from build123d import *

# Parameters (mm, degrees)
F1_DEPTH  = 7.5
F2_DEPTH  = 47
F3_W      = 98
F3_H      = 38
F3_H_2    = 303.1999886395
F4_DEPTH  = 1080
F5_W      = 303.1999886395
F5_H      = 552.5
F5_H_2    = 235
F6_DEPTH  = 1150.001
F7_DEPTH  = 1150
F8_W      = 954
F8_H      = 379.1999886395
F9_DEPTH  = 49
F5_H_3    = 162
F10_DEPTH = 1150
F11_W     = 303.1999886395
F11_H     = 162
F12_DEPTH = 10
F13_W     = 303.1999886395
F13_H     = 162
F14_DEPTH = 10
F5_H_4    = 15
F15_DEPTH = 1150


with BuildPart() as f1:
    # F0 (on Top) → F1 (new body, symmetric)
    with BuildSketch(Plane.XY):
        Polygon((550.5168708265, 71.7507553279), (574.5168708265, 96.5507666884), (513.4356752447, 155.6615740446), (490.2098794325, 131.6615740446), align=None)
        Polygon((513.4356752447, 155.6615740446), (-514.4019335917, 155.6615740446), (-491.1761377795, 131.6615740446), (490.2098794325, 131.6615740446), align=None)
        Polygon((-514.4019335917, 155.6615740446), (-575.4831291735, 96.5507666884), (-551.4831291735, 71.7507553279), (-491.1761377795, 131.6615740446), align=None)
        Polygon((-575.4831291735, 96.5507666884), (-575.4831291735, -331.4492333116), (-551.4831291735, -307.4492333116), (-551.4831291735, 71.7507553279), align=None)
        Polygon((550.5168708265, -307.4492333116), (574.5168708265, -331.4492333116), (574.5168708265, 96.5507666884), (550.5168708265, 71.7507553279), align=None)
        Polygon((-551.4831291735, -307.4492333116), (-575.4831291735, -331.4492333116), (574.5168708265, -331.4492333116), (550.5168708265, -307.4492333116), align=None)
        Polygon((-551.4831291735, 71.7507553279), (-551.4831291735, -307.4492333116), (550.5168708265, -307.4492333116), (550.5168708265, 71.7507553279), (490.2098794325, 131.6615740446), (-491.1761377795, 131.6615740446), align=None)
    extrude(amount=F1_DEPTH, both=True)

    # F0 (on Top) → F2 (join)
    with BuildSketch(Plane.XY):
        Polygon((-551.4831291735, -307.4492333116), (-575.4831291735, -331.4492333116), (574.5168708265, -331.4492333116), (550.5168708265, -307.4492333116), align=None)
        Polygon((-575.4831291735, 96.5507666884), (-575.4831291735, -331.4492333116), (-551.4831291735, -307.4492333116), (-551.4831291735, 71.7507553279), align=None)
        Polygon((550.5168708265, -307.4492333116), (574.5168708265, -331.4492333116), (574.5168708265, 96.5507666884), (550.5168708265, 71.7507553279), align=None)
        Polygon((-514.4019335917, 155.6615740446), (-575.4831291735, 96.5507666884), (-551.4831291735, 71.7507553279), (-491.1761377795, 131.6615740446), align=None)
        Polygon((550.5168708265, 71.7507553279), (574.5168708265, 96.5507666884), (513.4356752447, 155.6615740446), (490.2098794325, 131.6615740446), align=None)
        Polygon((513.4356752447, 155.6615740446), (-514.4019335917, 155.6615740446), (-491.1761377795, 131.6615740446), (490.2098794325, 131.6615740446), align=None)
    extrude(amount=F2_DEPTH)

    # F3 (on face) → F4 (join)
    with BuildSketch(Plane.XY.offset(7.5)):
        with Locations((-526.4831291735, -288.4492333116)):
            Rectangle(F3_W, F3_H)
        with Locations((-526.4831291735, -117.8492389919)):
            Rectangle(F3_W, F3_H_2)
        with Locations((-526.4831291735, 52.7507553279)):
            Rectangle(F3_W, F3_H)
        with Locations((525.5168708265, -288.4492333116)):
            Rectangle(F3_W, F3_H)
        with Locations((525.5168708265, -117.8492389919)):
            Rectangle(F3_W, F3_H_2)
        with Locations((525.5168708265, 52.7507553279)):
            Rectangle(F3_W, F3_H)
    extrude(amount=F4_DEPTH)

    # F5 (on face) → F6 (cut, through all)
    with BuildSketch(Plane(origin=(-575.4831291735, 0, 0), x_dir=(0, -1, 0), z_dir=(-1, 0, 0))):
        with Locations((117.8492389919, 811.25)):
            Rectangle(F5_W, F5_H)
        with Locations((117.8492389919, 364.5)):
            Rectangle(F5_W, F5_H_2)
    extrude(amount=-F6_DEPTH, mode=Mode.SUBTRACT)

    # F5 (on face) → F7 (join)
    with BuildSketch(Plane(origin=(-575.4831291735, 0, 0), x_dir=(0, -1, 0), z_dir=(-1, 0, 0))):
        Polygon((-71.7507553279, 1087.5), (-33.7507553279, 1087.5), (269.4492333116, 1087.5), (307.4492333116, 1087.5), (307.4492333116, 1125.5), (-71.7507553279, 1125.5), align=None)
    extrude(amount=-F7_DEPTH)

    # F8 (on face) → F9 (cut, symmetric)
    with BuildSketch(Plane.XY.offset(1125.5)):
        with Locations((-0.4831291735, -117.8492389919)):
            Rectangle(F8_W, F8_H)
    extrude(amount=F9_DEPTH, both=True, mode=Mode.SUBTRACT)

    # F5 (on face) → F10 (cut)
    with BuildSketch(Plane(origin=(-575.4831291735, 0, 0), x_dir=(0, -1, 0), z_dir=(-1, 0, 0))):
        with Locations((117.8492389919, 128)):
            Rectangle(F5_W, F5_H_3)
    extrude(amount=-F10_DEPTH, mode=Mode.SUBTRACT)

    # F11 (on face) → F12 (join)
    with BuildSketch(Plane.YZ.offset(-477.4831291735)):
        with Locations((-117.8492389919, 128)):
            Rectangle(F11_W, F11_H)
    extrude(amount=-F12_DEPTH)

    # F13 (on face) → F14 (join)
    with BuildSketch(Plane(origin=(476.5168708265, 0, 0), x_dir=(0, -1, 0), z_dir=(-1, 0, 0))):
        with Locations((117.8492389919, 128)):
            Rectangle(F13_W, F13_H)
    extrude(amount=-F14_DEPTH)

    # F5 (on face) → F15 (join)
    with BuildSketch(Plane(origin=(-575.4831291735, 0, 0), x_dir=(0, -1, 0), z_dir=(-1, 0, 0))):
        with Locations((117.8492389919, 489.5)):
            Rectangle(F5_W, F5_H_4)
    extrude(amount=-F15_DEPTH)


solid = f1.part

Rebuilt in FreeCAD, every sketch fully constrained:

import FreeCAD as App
import Part
import Sketcher
Q = App.Units.Quantity


def add_polygon(sketch, points):
    """Adds a closed chain of lines whose ends are joined by coincident constraints."""
    first, n = sketch.GeometryCount, len(points)
    for a, b in zip(points, points[1:] + points[:1]):
        sketch.addGeometry(Part.LineSegment(App.Vector(*a, 0), App.Vector(*b, 0)), False)
    for i in range(n):
        sketch.addConstraint(Sketcher.Constraint("Coincident", first + i, 2, first + (i + 1) % n, 1))

doc = App.newDocument("Part")
body = doc.addObject("PartDesign::Body", "Body")

sketch1 = body.newObject("Sketcher::SketchObject", "Sketch")
sketch1.AttachmentSupport = (doc.getObject("XY_Plane"), [""])
sketch1.MapMode = "FlatFace"
add_polygon(sketch1, [(574.516871, 96.550767), (513.435675, 155.661574), (-514.401934, 155.661574), (-575.483129, 96.550767), (-575.483129, -331.449233), (574.516871, -331.449233)])
sketch1.addConstraint(Sketcher.Constraint("Horizontal", 1))
sketch1.addConstraint(Sketcher.Constraint("Vertical", 3))
sketch1.addConstraint(Sketcher.Constraint("Horizontal", 4))
sketch1.addConstraint(Sketcher.Constraint("Vertical", 5))
sketch1.addConstraint(Sketcher.Constraint("Horizontal", 2, 2, 5, 2))
sketch1.addConstraint(Sketcher.Constraint("Equal", 0, 2))
sketch1.addConstraint(Sketcher.Constraint("DistanceX", 4, 1, 4, 2, Q("1150 mm")))
sketch1.addConstraint(Sketcher.Constraint("DistanceY", 3, 2, 3, 1, Q("428 mm")))
sketch1.addConstraint(Sketcher.Constraint("Distance", 0, Q("85 mm")))
sketch1.addConstraint(Sketcher.Constraint("DistanceX", 1, 2, 1, 1, Q("1027.837609 mm")))
sketch1.addConstraint(Sketcher.Constraint("DistanceX", 2, 2, -1, 1, Q("575.483129 mm")))
sketch1.addConstraint(Sketcher.Constraint("DistanceY", -1, 1, 0, 2, Q("155.661574 mm")))
pad1 = body.newObject("PartDesign::Pad", "Pad")
pad1.Profile = sketch1
pad1.Length = 15
pad1.Midplane = True

sketch2 = body.newObject("Sketcher::SketchObject", "Sketch001")
sketch2.AttachmentSupport = (doc.getObject("XY_Plane"), [""])
sketch2.MapMode = "FlatFace"
add_polygon(sketch2, [(-575.483129, -331.449233), (574.516871, -331.449233), (574.516871, 96.550767), (513.435675, 155.661574), (-514.401934, 155.661574), (-575.483129, 96.550767)])
add_polygon(sketch2, [(490.209879, 131.661574), (550.516871, 71.750755), (550.516871, -307.449233), (-551.483129, -307.449233), (-551.483129, 71.750755), (-491.176138, 131.661574)])
sketch2.addConstraint(Sketcher.Constraint("Horizontal", 0))
sketch2.addConstraint(Sketcher.Constraint("Vertical", 1))
sketch2.addConstraint(Sketcher.Constraint("Horizontal", 3))
sketch2.addConstraint(Sketcher.Constraint("Vertical", 5))
sketch2.addConstraint(Sketcher.Constraint("Vertical", 7))
sketch2.addConstraint(Sketcher.Constraint("Horizontal", 8))
sketch2.addConstraint(Sketcher.Constraint("Vertical", 9))
sketch2.addConstraint(Sketcher.Constraint("Horizontal", 11))
sketch2.addConstraint(Sketcher.Constraint("Horizontal", 1, 2, 4, 2))
sketch2.addConstraint(Sketcher.Constraint("Horizontal", 6, 2, 9, 2))
sketch2.addConstraint(Sketcher.Constraint("Equal", 2, 4))
sketch2.addConstraint(Sketcher.Constraint("Equal", 6, 10))
sketch2.addConstraint(Sketcher.Constraint("DistanceX", 0, 1, 0, 2, Q("1150 mm")))
sketch2.addConstraint(Sketcher.Constraint("DistanceX", 8, 2, 8, 1, Q("1102 mm")))
sketch2.addConstraint(Sketcher.Constraint("DistanceY", 1, 1, 1, 2, Q("428 mm")))
sketch2.addConstraint(Sketcher.Constraint("Distance", 2, Q("85 mm")))
sketch2.addConstraint(Sketcher.Constraint("DistanceX", 6, 2, 1, 2, Q("24 mm")))
sketch2.addConstraint(Sketcher.Constraint("DistanceY", 0, 2, 7, 2, Q("24 mm")))
sketch2.addConstraint(Sketcher.Constraint("DistanceY", 10, 2, 3, 2, Q("24 mm")))
sketch2.addConstraint(Sketcher.Constraint("DistanceX", 3, 2, 3, 1, Q("1027.837609 mm")))
sketch2.addConstraint(Sketcher.Constraint("DistanceY", 7, 2, 7, 1, Q("379.199989 mm")))
sketch2.addConstraint(Sketcher.Constraint("Distance", 6, Q("85.00729 mm")))
sketch2.addConstraint(Sketcher.Constraint("DistanceX", -1, 1, 0, 2, Q("574.516871 mm")))
sketch2.addConstraint(Sketcher.Constraint("DistanceY", 0, 2, -1, 1, Q("331.449233 mm")))
pad2 = body.newObject("PartDesign::Pad", "Pad001")
pad2.Profile = sketch2
pad2.Length = 47

sketch3 = body.newObject("Sketcher::SketchObject", "Sketch002")
sketch3.AttachmentSupport = (doc.getObject("XY_Plane"), [""])
sketch3.MapMode = "FlatFace"
sketch3.AttachmentOffset = App.Placement(App.Vector(0, 0, 7.5), App.Rotation())
add_polygon(sketch3, [(-575.483129, -307.449233), (-477.483129, -307.449233), (-477.483129, 71.750755), (-575.483129, 71.750755)])
add_polygon(sketch3, [(476.516871, -307.449233), (574.516871, -307.449233), (574.516871, 71.750755), (476.516871, 71.750755)])
sketch3.addConstraint(Sketcher.Constraint("Horizontal", 0))
sketch3.addConstraint(Sketcher.Constraint("Vertical", 1))
sketch3.addConstraint(Sketcher.Constraint("Horizontal", 2))
sketch3.addConstraint(Sketcher.Constraint("Vertical", 3))
sketch3.addConstraint(Sketcher.Constraint("Horizontal", 4))
sketch3.addConstraint(Sketcher.Constraint("Vertical", 5))
sketch3.addConstraint(Sketcher.Constraint("Horizontal", 6))
sketch3.addConstraint(Sketcher.Constraint("Vertical", 7))
sketch3.addConstraint(Sketcher.Constraint("Horizontal", 3, 2, 4, 2))
sketch3.addConstraint(Sketcher.Constraint("Horizontal", 2, 2, 5, 2))
sketch3.addConstraint(Sketcher.Constraint("Equal", 2, 4))
sketch3.addConstraint(Sketcher.Constraint("DistanceX", 0, 1, 0, 2, Q("98 mm")))
sketch3.addConstraint(Sketcher.Constraint("DistanceX", 0, 2, 4, 2, Q("1052 mm")))
sketch3.addConstraint(Sketcher.Constraint("DistanceY", 1, 1, 1, 2, Q("379.199989 mm")))
sketch3.addConstraint(Sketcher.Constraint("DistanceX", 0, 2, -1, 1, Q("477.483129 mm")))
sketch3.addConstraint(Sketcher.Constraint("DistanceY", 0, 2, -1, 1, Q("307.449233 mm")))
pad3 = body.newObject("PartDesign::Pad", "Pad002")
pad3.Profile = sketch3
pad3.Length = 1080

sketch4 = body.newObject("Sketcher::SketchObject", "Sketch003")
sketch4.AttachmentSupport = (doc.getObject("YZ_Plane"), [""])
sketch4.MapMode = "FlatFace"
sketch4.AttachmentOffset = App.Placement(App.Vector(0, 0, -575.483129), App.Rotation())
add_polygon(sketch4, [(33.750755, 1087.5), (33.750755, 535), (-269.449233, 535), (-269.449233, 1087.5)])
add_polygon(sketch4, [(33.750755, 482), (33.750755, 247), (-269.449233, 247), (-269.449233, 482)])
sketch4.addConstraint(Sketcher.Constraint("Vertical", 0))
sketch4.addConstraint(Sketcher.Constraint("Horizontal", 1))
sketch4.addConstraint(Sketcher.Constraint("Vertical", 2))
sketch4.addConstraint(Sketcher.Constraint("Horizontal", 3))
sketch4.addConstraint(Sketcher.Constraint("Vertical", 4))
sketch4.addConstraint(Sketcher.Constraint("Horizontal", 5))
sketch4.addConstraint(Sketcher.Constraint("Vertical", 6))
sketch4.addConstraint(Sketcher.Constraint("Horizontal", 7))
sketch4.addConstraint(Sketcher.Constraint("Vertical", 3, 2, 4, 2))
sketch4.addConstraint(Sketcher.Constraint("Vertical", 2, 2, 5, 2))
sketch4.addConstraint(Sketcher.Constraint("DistanceY", 4, 2, 4, 1, Q("235 mm")))
sketch4.addConstraint(Sketcher.Constraint("DistanceY", 0, 2, 0, 1, Q("552.5 mm")))
sketch4.addConstraint(Sketcher.Constraint("DistanceY", -1, 1, 0, 2, Q("535 mm")))
sketch4.addConstraint(Sketcher.Constraint("DistanceY", -1, 1, 4, 2, Q("247 mm")))
sketch4.addConstraint(Sketcher.Constraint("DistanceX", 1, 2, 1, 1, Q("303.199989 mm")))
sketch4.addConstraint(Sketcher.Constraint("DistanceX", -1, 1, 0, 2, Q("33.750755 mm")))
pocket1 = body.newObject("PartDesign::Pocket", "Pocket")
pocket1.Profile = sketch4
pocket1.Type = "ThroughAll"
pocket1.Reversed = True

sketch5 = body.newObject("Sketcher::SketchObject", "Sketch004")
sketch5.AttachmentSupport = (doc.getObject("YZ_Plane"), [""])
sketch5.MapMode = "FlatFace"
sketch5.AttachmentOffset = App.Placement(App.Vector(0, 0, -575.483129), App.Rotation())
add_polygon(sketch5, [(71.750755, 1087.5), (-307.449233, 1087.5), (-307.449233, 1125.5), (71.750755, 1125.5)])
sketch5.addConstraint(Sketcher.Constraint("Horizontal", 0))
sketch5.addConstraint(Sketcher.Constraint("Vertical", 1))
sketch5.addConstraint(Sketcher.Constraint("Horizontal", 2))
sketch5.addConstraint(Sketcher.Constraint("Vertical", 3))
sketch5.addConstraint(Sketcher.Constraint("DistanceY", 1, 1, 1, 2, Q("38 mm")))
sketch5.addConstraint(Sketcher.Constraint("DistanceY", -1, 1, 0, 2, Q("1087.5 mm")))
sketch5.addConstraint(Sketcher.Constraint("DistanceX", 0, 2, 0, 1, Q("379.199989 mm")))
sketch5.addConstraint(Sketcher.Constraint("DistanceX", 0, 2, -1, 1, Q("307.449233 mm")))
pad4 = body.newObject("PartDesign::Pad", "Pad003")
pad4.Profile = sketch5
pad4.Length = 1150

sketch6 = body.newObject("Sketcher::SketchObject", "Sketch005")
sketch6.AttachmentSupport = (doc.getObject("XY_Plane"), [""])
sketch6.MapMode = "FlatFace"
sketch6.AttachmentOffset = App.Placement(App.Vector(0, 0, 1125.5), App.Rotation())
add_polygon(sketch6, [(-477.483129, 71.750755), (-477.483129, -307.449233), (476.516871, -307.449233), (476.516871, 71.750755)])
sketch6.addConstraint(Sketcher.Constraint("Vertical", 0))
sketch6.addConstraint(Sketcher.Constraint("Horizontal", 1))
sketch6.addConstraint(Sketcher.Constraint("Vertical", 2))
sketch6.addConstraint(Sketcher.Constraint("Horizontal", 3))
sketch6.addConstraint(Sketcher.Constraint("DistanceX", 1, 1, 1, 2, Q("954 mm")))
sketch6.addConstraint(Sketcher.Constraint("DistanceY", 0, 2, 0, 1, Q("379.199989 mm")))
sketch6.addConstraint(Sketcher.Constraint("DistanceX", 0, 2, -1, 1, Q("477.483129 mm")))
sketch6.addConstraint(Sketcher.Constraint("DistanceY", 0, 2, -1, 1, Q("307.449233 mm")))
pocket2 = body.newObject("PartDesign::Pocket", "Pocket001")
pocket2.Profile = sketch6
pocket2.Length = 98
pocket2.Midplane = True

sketch7 = body.newObject("Sketcher::SketchObject", "Sketch006")
sketch7.AttachmentSupport = (doc.getObject("YZ_Plane"), [""])
sketch7.MapMode = "FlatFace"
sketch7.AttachmentOffset = App.Placement(App.Vector(0, 0, -575.483129), App.Rotation())
add_polygon(sketch7, [(33.750755, 209), (33.750755, 47), (-269.449233, 47), (-269.449233, 209)])
sketch7.addConstraint(Sketcher.Constraint("Vertical", 0))
sketch7.addConstraint(Sketcher.Constraint("Horizontal", 1))
sketch7.addConstraint(Sketcher.Constraint("Vertical", 2))
sketch7.addConstraint(Sketcher.Constraint("Horizontal", 3))
sketch7.addConstraint(Sketcher.Constraint("DistanceY", 0, 2, 0, 1, Q("162 mm")))
sketch7.addConstraint(Sketcher.Constraint("DistanceY", -1, 1, 0, 2, Q("47 mm")))
sketch7.addConstraint(Sketcher.Constraint("DistanceX", 1, 2, 1, 1, Q("303.199989 mm")))
sketch7.addConstraint(Sketcher.Constraint("DistanceX", -1, 1, 0, 2, Q("33.750755 mm")))
pocket3 = body.newObject("PartDesign::Pocket", "Pocket002")
pocket3.Profile = sketch7
pocket3.Length = 1150
pocket3.Reversed = True

sketch8 = body.newObject("Sketcher::SketchObject", "Sketch007")
sketch8.AttachmentSupport = (doc.getObject("YZ_Plane"), [""])
sketch8.MapMode = "FlatFace"
sketch8.AttachmentOffset = App.Placement(App.Vector(0, 0, -477.483129), App.Rotation())
add_polygon(sketch8, [(-269.449233, 209), (-269.449233, 47), (33.750755, 47), (33.750755, 209)])
sketch8.addConstraint(Sketcher.Constraint("Vertical", 0))
sketch8.addConstraint(Sketcher.Constraint("Horizontal", 1))
sketch8.addConstraint(Sketcher.Constraint("Vertical", 2))
sketch8.addConstraint(Sketcher.Constraint("Horizontal", 3))
sketch8.addConstraint(Sketcher.Constraint("DistanceY", 0, 2, 0, 1, Q("162 mm")))
sketch8.addConstraint(Sketcher.Constraint("DistanceY", -1, 1, 0, 2, Q("47 mm")))
sketch8.addConstraint(Sketcher.Constraint("DistanceX", 1, 1, 1, 2, Q("303.199989 mm")))
sketch8.addConstraint(Sketcher.Constraint("DistanceX", 0, 2, -1, 1, Q("269.449233 mm")))
pad5 = body.newObject("PartDesign::Pad", "Pad004")
pad5.Profile = sketch8
pad5.Length = 10
pad5.Reversed = True

sketch9 = body.newObject("Sketcher::SketchObject", "Sketch008")
sketch9.AttachmentSupport = (doc.getObject("YZ_Plane"), [""])
sketch9.MapMode = "FlatFace"
sketch9.AttachmentOffset = App.Placement(App.Vector(0, 0, 476.516871), App.Rotation())
add_polygon(sketch9, [(33.750755, 209), (33.750755, 47), (-269.449233, 47), (-269.449233, 209)])
sketch9.addConstraint(Sketcher.Constraint("Vertical", 0))
sketch9.addConstraint(Sketcher.Constraint("Horizontal", 1))
sketch9.addConstraint(Sketcher.Constraint("Vertical", 2))
sketch9.addConstraint(Sketcher.Constraint("Horizontal", 3))
sketch9.addConstraint(Sketcher.Constraint("DistanceY", 0, 2, 0, 1, Q("162 mm")))
sketch9.addConstraint(Sketcher.Constraint("DistanceY", -1, 1, 0, 2, Q("47 mm")))
sketch9.addConstraint(Sketcher.Constraint("DistanceX", 1, 2, 1, 1, Q("303.199989 mm")))
sketch9.addConstraint(Sketcher.Constraint("DistanceX", -1, 1, 0, 2, Q("33.750755 mm")))
pad6 = body.newObject("PartDesign::Pad", "Pad005")
pad6.Profile = sketch9
pad6.Length = 10

sketch10 = body.newObject("Sketcher::SketchObject", "Sketch009")
sketch10.AttachmentSupport = (doc.getObject("YZ_Plane"), [""])
sketch10.MapMode = "FlatFace"
sketch10.AttachmentOffset = App.Placement(App.Vector(0, 0, -575.483129), App.Rotation())
add_polygon(sketch10, [(33.750755, 497), (33.750755, 482), (-269.449233, 482), (-269.449233, 497)])
sketch10.addConstraint(Sketcher.Constraint("Vertical", 0))
sketch10.addConstraint(Sketcher.Constraint("Horizontal", 1))
sketch10.addConstraint(Sketcher.Constraint("Vertical", 2))
sketch10.addConstraint(Sketcher.Constraint("Horizontal", 3))
sketch10.addConstraint(Sketcher.Constraint("DistanceY", 0, 2, 0, 1, Q("15 mm")))
sketch10.addConstraint(Sketcher.Constraint("DistanceY", -1, 1, 0, 2, Q("482 mm")))
sketch10.addConstraint(Sketcher.Constraint("DistanceX", 1, 2, 1, 1, Q("303.199989 mm")))
sketch10.addConstraint(Sketcher.Constraint("DistanceX", -1, 1, 0, 2, Q("33.750755 mm")))
pad7 = body.newObject("PartDesign::Pad", "Pad006")
pad7.Profile = sketch10
pad7.Length = 1150

doc.recompute()
